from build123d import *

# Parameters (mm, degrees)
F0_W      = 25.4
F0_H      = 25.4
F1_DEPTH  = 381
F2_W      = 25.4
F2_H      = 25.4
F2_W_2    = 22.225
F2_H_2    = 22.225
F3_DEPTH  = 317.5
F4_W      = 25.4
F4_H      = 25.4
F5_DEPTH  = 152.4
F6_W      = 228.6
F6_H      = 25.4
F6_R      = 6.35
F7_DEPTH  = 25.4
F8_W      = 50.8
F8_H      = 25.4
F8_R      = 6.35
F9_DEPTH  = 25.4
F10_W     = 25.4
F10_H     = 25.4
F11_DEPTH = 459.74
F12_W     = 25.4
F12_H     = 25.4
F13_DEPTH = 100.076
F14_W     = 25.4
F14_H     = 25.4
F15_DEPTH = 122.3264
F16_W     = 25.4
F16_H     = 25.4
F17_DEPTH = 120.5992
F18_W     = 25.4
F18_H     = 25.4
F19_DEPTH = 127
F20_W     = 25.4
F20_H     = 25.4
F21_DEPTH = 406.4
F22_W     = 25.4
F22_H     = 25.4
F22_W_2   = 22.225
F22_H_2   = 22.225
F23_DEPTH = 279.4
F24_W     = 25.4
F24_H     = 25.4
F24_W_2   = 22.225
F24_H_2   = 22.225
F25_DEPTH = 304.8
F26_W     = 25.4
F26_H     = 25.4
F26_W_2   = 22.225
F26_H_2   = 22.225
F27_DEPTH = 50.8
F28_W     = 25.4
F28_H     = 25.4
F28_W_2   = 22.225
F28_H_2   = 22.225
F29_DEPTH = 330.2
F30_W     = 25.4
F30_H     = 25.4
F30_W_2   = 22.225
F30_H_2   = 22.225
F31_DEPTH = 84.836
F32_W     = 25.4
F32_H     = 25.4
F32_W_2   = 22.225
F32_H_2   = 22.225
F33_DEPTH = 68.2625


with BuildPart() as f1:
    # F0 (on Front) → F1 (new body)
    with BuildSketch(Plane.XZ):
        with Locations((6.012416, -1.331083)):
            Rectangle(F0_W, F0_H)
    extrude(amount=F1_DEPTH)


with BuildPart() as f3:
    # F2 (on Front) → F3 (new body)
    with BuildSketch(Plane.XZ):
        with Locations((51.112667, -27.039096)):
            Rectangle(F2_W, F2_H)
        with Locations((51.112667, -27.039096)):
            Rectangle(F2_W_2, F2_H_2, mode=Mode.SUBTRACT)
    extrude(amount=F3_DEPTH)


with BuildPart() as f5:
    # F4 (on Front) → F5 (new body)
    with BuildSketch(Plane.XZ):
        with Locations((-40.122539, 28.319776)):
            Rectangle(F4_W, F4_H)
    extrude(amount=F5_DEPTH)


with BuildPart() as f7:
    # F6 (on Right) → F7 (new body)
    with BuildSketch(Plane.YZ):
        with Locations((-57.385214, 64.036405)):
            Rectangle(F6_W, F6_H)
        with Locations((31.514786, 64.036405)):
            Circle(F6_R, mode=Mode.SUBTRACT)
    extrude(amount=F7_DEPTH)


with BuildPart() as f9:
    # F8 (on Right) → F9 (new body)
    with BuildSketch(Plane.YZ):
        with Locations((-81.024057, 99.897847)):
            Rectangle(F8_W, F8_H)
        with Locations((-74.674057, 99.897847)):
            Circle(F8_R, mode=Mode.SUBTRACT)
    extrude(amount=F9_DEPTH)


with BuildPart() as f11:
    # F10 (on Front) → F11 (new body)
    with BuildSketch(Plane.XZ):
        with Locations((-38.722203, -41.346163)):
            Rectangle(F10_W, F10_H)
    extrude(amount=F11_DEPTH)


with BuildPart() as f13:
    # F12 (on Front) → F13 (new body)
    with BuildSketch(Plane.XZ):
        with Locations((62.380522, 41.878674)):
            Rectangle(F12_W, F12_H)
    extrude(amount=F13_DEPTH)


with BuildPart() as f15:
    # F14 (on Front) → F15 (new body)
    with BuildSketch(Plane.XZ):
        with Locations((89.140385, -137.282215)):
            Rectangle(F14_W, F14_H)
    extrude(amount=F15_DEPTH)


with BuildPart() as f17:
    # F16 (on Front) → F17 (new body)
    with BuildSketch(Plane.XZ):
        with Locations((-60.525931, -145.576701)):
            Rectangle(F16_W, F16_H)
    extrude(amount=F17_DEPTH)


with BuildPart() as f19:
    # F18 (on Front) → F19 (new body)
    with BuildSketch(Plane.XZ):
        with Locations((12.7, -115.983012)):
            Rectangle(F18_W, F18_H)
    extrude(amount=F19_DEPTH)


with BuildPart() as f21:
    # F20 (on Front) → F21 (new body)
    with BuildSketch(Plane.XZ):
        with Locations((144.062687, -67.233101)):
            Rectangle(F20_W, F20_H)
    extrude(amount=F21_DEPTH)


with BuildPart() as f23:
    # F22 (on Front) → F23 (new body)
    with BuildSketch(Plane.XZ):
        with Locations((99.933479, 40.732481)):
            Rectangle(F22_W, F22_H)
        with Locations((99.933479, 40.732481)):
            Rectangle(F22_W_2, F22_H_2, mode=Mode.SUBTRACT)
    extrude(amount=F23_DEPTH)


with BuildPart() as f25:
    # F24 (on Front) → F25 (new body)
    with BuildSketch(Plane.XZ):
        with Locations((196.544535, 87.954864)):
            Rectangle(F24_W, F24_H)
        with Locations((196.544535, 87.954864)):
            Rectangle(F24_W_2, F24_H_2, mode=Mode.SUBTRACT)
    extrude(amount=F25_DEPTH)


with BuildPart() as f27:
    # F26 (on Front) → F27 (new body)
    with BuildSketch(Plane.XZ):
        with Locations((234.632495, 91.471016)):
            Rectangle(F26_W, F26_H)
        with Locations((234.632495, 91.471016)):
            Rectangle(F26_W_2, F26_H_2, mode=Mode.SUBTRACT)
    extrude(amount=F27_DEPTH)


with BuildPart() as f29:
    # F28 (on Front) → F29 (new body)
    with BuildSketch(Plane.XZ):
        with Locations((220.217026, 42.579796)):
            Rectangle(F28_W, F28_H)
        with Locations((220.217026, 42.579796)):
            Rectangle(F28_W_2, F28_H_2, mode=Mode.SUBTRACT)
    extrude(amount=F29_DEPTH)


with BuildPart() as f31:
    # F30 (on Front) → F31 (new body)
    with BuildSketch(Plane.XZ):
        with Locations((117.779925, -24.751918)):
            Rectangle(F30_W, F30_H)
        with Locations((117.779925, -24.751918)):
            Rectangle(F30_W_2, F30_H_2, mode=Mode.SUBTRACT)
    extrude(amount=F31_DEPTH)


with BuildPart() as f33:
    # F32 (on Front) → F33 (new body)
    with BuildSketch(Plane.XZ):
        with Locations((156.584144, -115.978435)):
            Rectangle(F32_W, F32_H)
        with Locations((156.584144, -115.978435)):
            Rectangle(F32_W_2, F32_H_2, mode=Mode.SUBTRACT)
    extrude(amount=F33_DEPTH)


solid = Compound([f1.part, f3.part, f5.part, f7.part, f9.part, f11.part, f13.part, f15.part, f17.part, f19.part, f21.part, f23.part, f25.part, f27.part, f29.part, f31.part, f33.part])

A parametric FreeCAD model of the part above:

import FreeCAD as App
import Part
import Sketcher
Q = App.Units.Quantity

doc = App.newDocument("Part")
body = doc.addObject("PartDesign::Body", "Body")

sketch1 = body.newObject("Sketcher::SketchObject", "Sketch")
sketch1.AttachmentSupport = (doc.getObject("XZ_Plane"), [""])
sketch1.MapMode = "FlatFace"
sketch1.addGeometry(Part.LineSegment(App.Vector(-7, 11, 0), App.Vector(-7, -14, 0)), False)
sketch1.addGeometry(Part.LineSegment(App.Vector(-7, -14, 0), App.Vector(19, -14, 0)), False)
sketch1.addGeometry(Part.LineSegment(App.Vector(19, -14, 0), App.Vector(19, 11, 0)), False)
sketch1.addGeometry(Part.LineSegment(App.Vector(19, 11, 0), App.Vector(-7, 11, 0)), False)
sketch1.addConstraint(Sketcher.Constraint("Coincident", 0, 2, 1, 1))
sketch1.addConstraint(Sketcher.Constraint("Coincident", 1, 2, 2, 1))
sketch1.addConstraint(Sketcher.Constraint("Coincident", 2, 2, 3, 1))
sketch1.addConstraint(Sketcher.Constraint("Coincident", 3, 2, 0, 1))
sketch1.addConstraint(Sketcher.Constraint("Vertical", 0))
sketch1.addConstraint(Sketcher.Constraint("Horizontal", 1))
sketch1.addConstraint(Sketcher.Constraint("Vertical", 2))
sketch1.addConstraint(Sketcher.Constraint("Horizontal", 3))
sketch1.addConstraint(Sketcher.Constraint("Equal", 3, 0))
sketch1.addConstraint(Sketcher.Constraint("DistanceX", 1, 1, 1, 2, Q("1 in")))
sketch1.addConstraint(Sketcher.Constraint("DistanceX", 0, 2, -1, 1, 6.687584))
sketch1.addConstraint(Sketcher.Constraint("DistanceY", 0, 2, -1, 1, 14.031083))
pad1 = body.newObject("PartDesign::Pad", "Pad")
pad1.Profile = sketch1
pad1.Length = Q("15 in")
body2 = doc.addObject("PartDesign::Body", "Body001")

sketch2 = body2.newObject("Sketcher::SketchObject", "Sketch001")
sketch2.AttachmentSupport = (doc.getObject("XZ_Plane001"), [""])
sketch2.MapMode = "FlatFace"
sketch2.addGeometry(Part.LineSegment(App.Vector(38, -14, 0), App.Vector(38, -40, 0)), False)
sketch2.addGeometry(Part.LineSegment(App.Vector(38, -40, 0), App.Vector(64, -40, 0)), False)
sketch2.addGeometry(Part.LineSegment(App.Vector(64, -40, 0), App.Vector(64, -14, 0)), False)
sketch2.addGeometry(Part.LineSegment(App.Vector(64, -14, 0), App.Vector(38, -14, 0)), False)
sketch2.addGeometry(Part.LineSegment(App.Vector(62, -38, 0), App.Vector(40, -38, 0)), False)
sketch2.addGeometry(Part.LineSegment(App.Vector(40, -38, 0), App.Vector(40, -16, 0)), False)
sketch2.addGeometry(Part.LineSegment(App.Vector(40, -16, 0), App.Vector(62, -16, 0)), False)
sketch2.addGeometry(Part.LineSegment(App.Vector(62, -16, 0), App.Vector(62, -38, 0)), False)
sketch2.addConstraint(Sketcher.Constraint("Coincident", 0, 2, 1, 1))
sketch2.addConstraint(Sketcher.Constraint("Coincident", 1, 2, 2, 1))
sketch2.addConstraint(Sketcher.Constraint("Coincident", 2, 2, 3, 1))
sketch2.addConstraint(Sketcher.Constraint("Coincident", 3, 2, 0, 1))
sketch2.addConstraint(Sketcher.Constraint("Coincident", 4, 2, 5, 1))
sketch2.addConstraint(Sketcher.Constraint("Coincident", 5, 2, 6, 1))
sketch2.addConstraint(Sketcher.Constraint("Coincident", 6, 2, 7, 1))
sketch2.addConstraint(Sketcher.Constraint("Coincident", 7, 2, 4, 1))
sketch2.addConstraint(Sketcher.Constraint("Vertical", 0))
sketch2.addConstraint(Sketcher.Constraint("Horizontal", 1))
sketch2.addConstraint(Sketcher.Constraint("Vertical", 2))
sketch2.addConstraint(Sketcher.Constraint("Horizontal", 3))
sketch2.addConstraint(Sketcher.Constraint("Horizontal", 4))
sketch2.addConstraint(Sketcher.Constraint("Vertical", 5))
sketch2.addConstraint(Sketcher.Constraint("Horizontal", 6))
sketch2.addConstraint(Sketcher.Constraint("Vertical", 7))
sketch2.addConstraint(Sketcher.Constraint("Equal", 3, 0))
sketch2.addConstraint(Sketcher.Constraint("Equal", 6, 5))
sketch2.addConstraint(Sketcher.Constraint("DistanceX", 1, 1, 1, 2, Q("1 in")))
sketch2.addConstraint(Sketcher.Constraint("DistanceX", 4, 2, 4, 1, Q("0.875 in")))
sketch2.addConstraint(Sketcher.Constraint("DistanceX", 0, 2, 4, 2, Q("0.0625 in")))
sketch2.addConstraint(Sketcher.Constraint("DistanceY", 0, 2, 4, 2, Q("0.0625 in")))
sketch2.addConstraint(Sketcher.Constraint("DistanceX", -1, 1, 0, 2, 38.412667))
sketch2.addConstraint(Sketcher.Constraint("DistanceY", 0, 2, -1, 1, 39.739096))
pad2 = body2.newObject("PartDesign::Pad", "Pad001")
pad2.Profile = sketch2
pad2.Length = Q("12.5 in")
body3 = doc.addObject("PartDesign::Body", "Body002")

sketch3 = body3.newObject("Sketcher::SketchObject", "Sketch002")
sketch3.AttachmentSupport = (doc.getObject("XZ_Plane002"), [""])
sketch3.MapMode = "FlatFace"
sketch3.addGeometry(Part.LineSegment(App.Vector(-53, 41, 0), App.Vector(-53, 16, 0)), False)
sketch3.addGeometry(Part.LineSegment(App.Vector(-53, 16, 0), App.Vector(-27, 16, 0)), False)
sketch3.addGeometry(Part.LineSegment(App.Vector(-27, 16, 0), App.Vector(-27, 41, 0)), False)
sketch3.addGeometry(Part.LineSegment(App.Vector(-27, 41, 0), App.Vector(-53, 41, 0)), False)
sketch3.addConstraint(Sketcher.Constraint("Coincident", 0, 2, 1, 1))
sketch3.addConstraint(Sketcher.Constraint("Coincident", 1, 2, 2, 1))
sketch3.addConstraint(Sketcher.Constraint("Coincident", 2, 2, 3, 1))
sketch3.addConstraint(Sketcher.Constraint("Coincident", 3, 2, 0, 1))
sketch3.addConstraint(Sketcher.Constraint("Vertical", 0))
sketch3.addConstraint(Sketcher.Constraint("Horizontal", 1))
sketch3.addConstraint(Sketcher.Constraint("Vertical", 2))
sketch3.addConstraint(Sketcher.Constraint("Horizontal", 3))
sketch3.addConstraint(Sketcher.Constraint("Equal", 3, 0))
sketch3.addConstraint(Sketcher.Constraint("DistanceX", 1, 1, 1, 2, Q("1 in")))
sketch3.addConstraint(Sketcher.Constraint("DistanceX", 0, 2, -1, 1, 52.822539))
sketch3.addConstraint(Sketcher.Constraint("DistanceY", -1, 1, 0, 2, 15.619776))
pad3 = body3.newObject("PartDesign::Pad", "Pad002")
pad3.Profile = sketch3
pad3.Length = Q("6 in")
body4 = doc.addObject("PartDesign::Body", "Body003")

sketch4 = body4.newObject("Sketcher::SketchObject", "Sketch003")
sketch4.AttachmentSupport = (doc.getObject("YZ_Plane003"), [""])
sketch4.MapMode = "FlatFace"
sketch4.addGeometry(Part.LineSegment(App.Vector(-172, 77, 0), App.Vector(-172, 51, 0)), False)
sketch4.addGeometry(Part.LineSegment(App.Vector(-172, 51, 0), App.Vector(57, 51, 0)), False)
sketch4.addGeometry(Part.LineSegment(App.Vector(57, 51, 0), App.Vector(57, 77, 0)), False)
sketch4.addGeometry(Part.LineSegment(App.Vector(57, 77, 0), App.Vector(-172, 77, 0)), False)
sketch4.addGeometry(Part.Circle(App.Vector(32, 64, 0), App.Vector(0, 0, 1), 6), False)
sketch4.addConstraint(Sketcher.Constraint("Coincident", 0, 2, 1, 1))
sketch4.addConstraint(Sketcher.Constraint("Coincident", 1, 2, 2, 1))
sketch4.addConstraint(Sketcher.Constraint("Coincident", 2, 2, 3, 1))
sketch4.addConstraint(Sketcher.Constraint("Coincident", 3, 2, 0, 1))
sketch4.addConstraint(Sketcher.Constraint("Vertical", 0))
sketch4.addConstraint(Sketcher.Constraint("Horizontal", 1))
sketch4.addConstraint(Sketcher.Constraint("Vertical", 2))
sketch4.addConstraint(Sketcher.Constraint("Horizontal", 3))
sketch4.addConstraint(Sketcher.Constraint("Diameter", 4, Q("0.5 in")))
sketch4.addConstraint(Sketcher.Constraint("DistanceX", 1, 1, 1, 2, Q("9 in")))
sketch4.addConstraint(Sketcher.Constraint("DistanceY", 0, 2, 0, 1, Q("1 in")))
sketch4.addConstraint(Sketcher.Constraint("DistanceX", 0, 2, 4, 3, Q("8 in")))
sketch4.addConstraint(Sketcher.Constraint("DistanceY", 0, 2, 4, 3, Q("0.5 in")))
sketch4.addConstraint(Sketcher.Constraint("DistanceX", -1, 1, 4, 3, 31.514786))
sketch4.addConstraint(Sketcher.Constraint("DistanceY", -1, 1, 4, 3, 64.036405))
pad4 = body4.newObject("PartDesign::Pad", "Pad003")
pad4.Profile = sketch4
pad4.Length = Q("1 in")
body5 = doc.addObject("PartDesign::Body", "Body004")

sketch5 = body5.newObject("Sketcher::SketchObject", "Sketch004")
sketch5.AttachmentSupport = (doc.getObject("YZ_Plane004"), [""])
sketch5.MapMode = "FlatFace"
sketch5.addGeometry(Part.LineSegment(App.Vector(-106, 113, 0), App.Vector(-106, 87, 0)), False)
sketch5.addGeometry(Part.LineSegment(App.Vector(-106, 87, 0), App.Vector(-56, 87, 0)), False)
sketch5.addGeometry(Part.LineSegment(App.Vector(-56, 87, 0), App.Vector(-56, 113, 0)), False)
sketch5.addGeometry(Part.LineSegment(App.Vector(-56, 113, 0), App.Vector(-106, 113, 0)), False)
sketch5.addGeometry(Part.Circle(App.Vector(-75, 100, 0), App.Vector(0, 0, 1), 6), False)
sketch5.addConstraint(Sketcher.Constraint("Coincident", 0, 2, 1, 1))
sketch5.addConstraint(Sketcher.Constraint("Coincident", 1, 2, 2, 1))
sketch5.addConstraint(Sketcher.Constraint("Coincident", 2, 2, 3, 1))
sketch5.addConstraint(Sketcher.Constraint("Coincident", 3, 2, 0, 1))
sketch5.addConstraint(Sketcher.Constraint("Vertical", 0))
sketch5.addConstraint(Sketcher.Constraint("Horizontal", 1))
sketch5.addConstraint(Sketcher.Constraint("Vertical", 2))
sketch5.addConstraint(Sketcher.Constraint("Horizontal", 3))
sketch5.addConstraint(Sketcher.Constraint("Diameter", 4, Q("0.5 in")))
sketch5.addConstraint(Sketcher.Constraint("DistanceX", 1, 1, 1, 2, Q("2 in")))
sketch5.addConstraint(Sketcher.Constraint("DistanceY", 0, 2, 0, 1, Q("1 in")))
sketch5.addConstraint(Sketcher.Constraint("DistanceY", 0, 2, 4, 3, Q("0.5 in")))
sketch5.addConstraint(Sketcher.Constraint("DistanceX", 0, 2, 4, 3, Q("1.25 in")))
sketch5.addConstraint(Sketcher.Constraint("DistanceX", 4, 3, -1, 1, 74.674057))
sketch5.addConstraint(Sketcher.Constraint("DistanceY", -1, 1, 4, 3, 99.897847))
pad5 = body5.newObject("PartDesign::Pad", "Pad004")
pad5.Profile = sketch5
pad5.Length = Q("1 in")
body6 = doc.addObject("PartDesign::Body", "Body005")

sketch6 = body6.newObject("Sketcher::SketchObject", "Sketch005")
sketch6.AttachmentSupport = (doc.getObject("XZ_Plane005"), [""])
sketch6.MapMode = "FlatFace"
sketch6.addGeometry(Part.LineSegment(App.Vector(-51, -29, 0), App.Vector(-51, -54, 0)), False)
sketch6.addGeometry(Part.LineSegment(App.Vector(-51, -54, 0), App.Vector(-26, -54, 0)), False)
sketch6.addGeometry(Part.LineSegment(App.Vector(-26, -54, 0), App.Vector(-26, -29, 0)), False)
sketch6.addGeometry(Part.LineSegment(App.Vector(-26, -29, 0), App.Vector(-51, -29, 0)), False)
sketch6.addConstraint(Sketcher.Constraint("Coincident", 0, 2, 1, 1))
sketch6.addConstraint(Sketcher.Constraint("Coincident", 1, 2, 2, 1))
sketch6.addConstraint(Sketcher.Constraint("Coincident", 2, 2, 3, 1))
sketch6.addConstraint(Sketcher.Constraint("Coincident", 3, 2, 0, 1))
sketch6.addConstraint(Sketcher.Constraint("Vertical", 0))
sketch6.addConstraint(Sketcher.Constraint("Horizontal", 1))
sketch6.addConstraint(Sketcher.Constraint("Vertical", 2))
sketch6.addConstraint(Sketcher.Constraint("Horizontal", 3))
sketch6.addConstraint(Sketcher.Constraint("Equal", 3, 0))
sketch6.addConstraint(Sketcher.Constraint("DistanceX", 1, 1, 1, 2, Q("1 in")))
sketch6.addConstraint(Sketcher.Constraint("DistanceX", 0, 2, -1, 1, 51.422203))
sketch6.addConstraint(Sketcher.Constraint("DistanceY", 0, 2, -1, 1, 54.046163))
pad6 = body6.newObject("PartDesign::Pad", "Pad005")
pad6.Profile = sketch6
pad6.Length = Q("18.1 in")
body7 = doc.addObject("PartDesign::Body", "Body006")

sketch7 = body7.newObject("Sketcher::SketchObject", "Sketch006")
sketch7.AttachmentSupport = (doc.getObject("XZ_Plane006"), [""])
sketch7.MapMode = "FlatFace"
sketch7.addGeometry(Part.LineSegment(App.Vector(50, 55, 0), App.Vector(50, 29, 0)), False)
sketch7.addGeometry(Part.LineSegment(App.Vector(50, 29, 0), App.Vector(75, 29, 0)), False)
sketch7.addGeometry(Part.LineSegment(App.Vector(75, 29, 0), App.Vector(75, 55, 0)), False)
sketch7.addGeometry(Part.LineSegment(App.Vector(75, 55, 0), App.Vector(50, 55, 0)), False)
sketch7.addConstraint(Sketcher.Constraint("Coincident", 0, 2, 1, 1))
sketch7.addConstraint(Sketcher.Constraint("Coincident", 1, 2, 2, 1))
sketch7.addConstraint(Sketcher.Constraint("Coincident", 2, 2, 3, 1))
sketch7.addConstraint(Sketcher.Constraint("Coincident", 3, 2, 0, 1))
sketch7.addConstraint(Sketcher.Constraint("Vertical", 0))
sketch7.addConstraint(Sketcher.Constraint("Horizontal", 1))
sketch7.addConstraint(Sketcher.Constraint("Vertical", 2))
sketch7.addConstraint(Sketcher.Constraint("Horizontal", 3))
sketch7.addConstraint(Sketcher.Constraint("Equal", 3, 0))
sketch7.addConstraint(Sketcher.Constraint("DistanceX", 1, 1, 1, 2, Q("1 in")))
sketch7.addConstraint(Sketcher.Constraint("DistanceX", -1, 1, 1, 2, 75.080522))
sketch7.addConstraint(Sketcher.Constraint("DistanceY", -1, 1, 0, 2, 29.178674))
pad7 = body7.newObject("PartDesign::Pad", "Pad006")
pad7.Profile = sketch7
pad7.Length = Q("3.94 in")
body8 = doc.addObject("PartDesign::Body", "Body007")

sketch8 = body8.newObject("Sketcher::SketchObject", "Sketch007")
sketch8.AttachmentSupport = (doc.getObject("XZ_Plane007"), [""])
sketch8.MapMode = "FlatFace"
sketch8.addGeometry(Part.LineSegment(App.Vector(76, -125, 0), App.Vector(76, -150, 0)), False)
sketch8.addGeometry(Part.LineSegment(App.Vector(76, -150, 0), App.Vector(102, -150, 0)), False)
sketch8.addGeometry(Part.LineSegment(App.Vector(102, -150, 0), App.Vector(102, -125, 0)), False)
sketch8.addGeometry(Part.LineSegment(App.Vector(102, -125, 0), App.Vector(76, -125, 0)), False)
sketch8.addConstraint(Sketcher.Constraint("Coincident", 0, 2, 1, 1))
sketch8.addConstraint(Sketcher.Constraint("Coincident", 1, 2, 2, 1))
sketch8.addConstraint(Sketcher.Constraint("Coincident", 2, 2, 3, 1))
sketch8.addConstraint(Sketcher.Constraint("Coincident", 3, 2, 0, 1))
sketch8.addConstraint(Sketcher.Constraint("Vertical", 0))
sketch8.addConstraint(Sketcher.Constraint("Horizontal", 1))
sketch8.addConstraint(Sketcher.Constraint("Vertical", 2))
sketch8.addConstraint(Sketcher.Constraint("Horizontal", 3))
sketch8.addConstraint(Sketcher.Constraint("Equal", 3, 0))
sketch8.addConstraint(Sketcher.Constraint("DistanceX", 1, 1, 1, 2, Q("1 in")))
sketch8.addConstraint(Sketcher.Constraint("DistanceX", -1, 1, 0, 2, 76.440385))
sketch8.addConstraint(Sketcher.Constraint("DistanceY", 0, 2, -1, 1, 149.982215))
pad8 = body8.newObject("PartDesign::Pad", "Pad007")
pad8.Profile = sketch8
pad8.Length = Q("4.816 in")
body9 = doc.addObject("PartDesign::Body", "Body008")

sketch9 = body9.newObject("Sketcher::SketchObject", "Sketch008")
sketch9.AttachmentSupport = (doc.getObject("XZ_Plane008"), [""])
sketch9.MapMode = "FlatFace"
sketch9.addGeometry(Part.LineSegment(App.Vector(-73, -133, 0), App.Vector(-73, -158, 0)), False)
sketch9.addGeometry(Part.LineSegment(App.Vector(-73, -158, 0), App.Vector(-48, -158, 0)), False)
sketch9.addGeometry(Part.LineSegment(App.Vector(-48, -158, 0), App.Vector(-48, -133, 0)), False)
sketch9.addGeometry(Part.LineSegment(App.Vector(-48, -133, 0), App.Vector(-73, -133, 0)), False)
sketch9.addConstraint(Sketcher.Constraint("Coincident", 0, 2, 1, 1))
sketch9.addConstraint(Sketcher.Constraint("Coincident", 1, 2, 2, 1))
sketch9.addConstraint(Sketcher.Constraint("Coincident", 2, 2, 3, 1))
sketch9.addConstraint(Sketcher.Constraint("Coincident", 3, 2, 0, 1))
sketch9.addConstraint(Sketcher.Constraint("Vertical", 0))
sketch9.addConstraint(Sketcher.Constraint("Horizontal", 1))
sketch9.addConstraint(Sketcher.Constraint("Vertical", 2))
sketch9.addConstraint(Sketcher.Constraint("Horizontal", 3))
sketch9.addConstraint(Sketcher.Constraint("Equal", 3, 0))
sketch9.addConstraint(Sketcher.Constraint("DistanceX", 1, 1, 1, 2, Q("1 in")))
sketch9.addConstraint(Sketcher.Constraint("DistanceY", 0, 2, -1, 1, 158.276701))
sketch9.addConstraint(Sketcher.Constraint("DistanceX", 0, 2, -1, 1, 73.225931))
pad9 = body9.newObject("PartDesign::Pad", "Pad008")
pad9.Profile = sketch9
pad9.Length = Q("4.748 in")
body10 = doc.addObject("PartDesign::Body", "Body009")

sketch10 = body10.newObject("Sketcher::SketchObject", "Sketch009")
sketch10.AttachmentSupport = (doc.getObject("XZ_Plane009"), [""])
sketch10.MapMode = "FlatFace"
sketch10.addGeometry(Part.LineSegment(App.Vector(0, -103, 0), App.Vector(0, -129, 0)), False)
sketch10.addGeometry(Part.LineSegment(App.Vector(0, -129, 0), App.Vector(25, -129, 0)), False)
sketch10.addGeometry(Part.LineSegment(App.Vector(25, -129, 0), App.Vector(25, -103, 0)), False)
sketch10.addGeometry(Part.LineSegment(App.Vector(25, -103, 0), App.Vector(0, -103, 0)), False)
sketch10.addConstraint(Sketcher.Constraint("Coincident", 0, 2, 1, 1))
sketch10.addConstraint(Sketcher.Constraint("Coincident", 1, 2, 2, 1))
sketch10.addConstraint(Sketcher.Constraint("Coincident", 2, 2, 3, 1))
sketch10.addConstraint(Sketcher.Constraint("Coincident", 3, 2, 0, 1))
sketch10.addConstraint(Sketcher.Constraint("Vertical", 0))
sketch10.addConstraint(Sketcher.Constraint("Horizontal", 1))
sketch10.addConstraint(Sketcher.Constraint("Vertical", 2))
sketch10.addConstraint(Sketcher.Constraint("Horizontal", 3))
sketch10.addConstraint(Sketcher.Constraint("PointOnObject", 0, 2, -2))
sketch10.addConstraint(Sketcher.Constraint("Equal", 3, 0))
sketch10.addConstraint(Sketcher.Constraint("DistanceX", 1, 1, 1, 2, Q("1 in")))
sketch10.addConstraint(Sketcher.Constraint("DistanceY", 0, 2, -1, 1, 128.683012))
pad10 = body10.newObject("PartDesign::Pad", "Pad009")
pad10.Profile = sketch10
pad10.Length = Q("5 in")
body11 = doc.addObject("PartDesign::Body", "Body010")

sketch11 = body11.newObject("Sketcher::SketchObject", "Sketch010")
sketch11.AttachmentSupport = (doc.getObject("XZ_Plane010"), [""])
sketch11.MapMode = "FlatFace"
sketch11.addGeometry(Part.LineSegment(App.Vector(131, -55, 0), App.Vector(131, -80, 0)), False)
sketch11.addGeometry(Part.LineSegment(App.Vector(131, -80, 0), App.Vector(157, -80, 0)), False)
sketch11.addGeometry(Part.LineSegment(App.Vector(157, -80, 0), App.Vector(157, -55, 0)), False)
sketch11.addGeometry(Part.LineSegment(App.Vector(157, -55, 0), App.Vector(131, -55, 0)), False)
sketch11.addConstraint(Sketcher.Constraint("Coincident", 0, 2, 1, 1))
sketch11.addConstraint(Sketcher.Constraint("Coincident", 1, 2, 2, 1))
sketch11.addConstraint(Sketcher.Constraint("Coincident", 2, 2, 3, 1))
sketch11.addConstraint(Sketcher.Constraint("Coincident", 3, 2, 0, 1))
sketch11.addConstraint(Sketcher.Constraint("Vertical", 0))
sketch11.addConstraint(Sketcher.Constraint("Horizontal", 1))
sketch11.addConstraint(Sketcher.Constraint("Vertical", 2))
sketch11.addConstraint(Sketcher.Constraint("Horizontal", 3))
sketch11.addConstraint(Sketcher.Constraint("Equal", 3, 0))
sketch11.addConstraint(Sketcher.Constraint("DistanceX", 1, 1, 1, 2, Q("1 in")))
sketch11.addConstraint(Sketcher.Constraint("DistanceY", 0, 2, -1, 1, 79.933101))
sketch11.addConstraint(Sketcher.Constraint("DistanceX", -1, 1, 0, 2, 131.362687))
pad11 = body11.newObject("PartDesign::Pad", "Pad010")
pad11.Profile = sketch11
pad11.Length = Q("16 in")
body12 = doc.addObject("PartDesign::Body", "Body011")

sketch12 = body12.newObject("Sketcher::SketchObject", "Sketch011")
sketch12.AttachmentSupport = (doc.getObject("XZ_Plane011"), [""])
sketch12.MapMode = "FlatFace"
sketch12.addGeometry(Part.LineSegment(App.Vector(87, 53, 0), App.Vector(87, 28, 0)), False)
sketch12.addGeometry(Part.LineSegment(App.Vector(87, 28, 0), App.Vector(113, 28, 0)), False)
sketch12.addGeometry(Part.LineSegment(App.Vector(113, 28, 0), App.Vector(113, 53, 0)), False)
sketch12.addGeometry(Part.LineSegment(App.Vector(113, 53, 0), App.Vector(87, 53, 0)), False)
sketch12.addGeometry(Part.LineSegment(App.Vector(111, 30, 0), App.Vector(89, 30, 0)), False)
sketch12.addGeometry(Part.LineSegment(App.Vector(89, 30, 0), App.Vector(89, 52, 0)), False)
sketch12.addGeometry(Part.LineSegment(App.Vector(89, 52, 0), App.Vector(111, 52, 0)), False)
sketch12.addGeometry(Part.LineSegment(App.Vector(111, 52, 0), App.Vector(111, 30, 0)), False)
sketch12.addConstraint(Sketcher.Constraint("Coincident", 0, 2, 1, 1))
sketch12.addConstraint(Sketcher.Constraint("Coincident", 1, 2, 2, 1))
sketch12.addConstraint(Sketcher.Constraint("Coincident", 2, 2, 3, 1))
sketch12.addConstraint(Sketcher.Constraint("Coincident", 3, 2, 0, 1))
sketch12.addConstraint(Sketcher.Constraint("Coincident", 4, 2, 5, 1))
sketch12.addConstraint(Sketcher.Constraint("Coincident", 5, 2, 6, 1))
sketch12.addConstraint(Sketcher.Constraint("Coincident", 6, 2, 7, 1))
sketch12.addConstraint(Sketcher.Constraint("Coincident", 7, 2, 4, 1))
sketch12.addConstraint(Sketcher.Constraint("Vertical", 0))
sketch12.addConstraint(Sketcher.Constraint("Horizontal", 1))
sketch12.addConstraint(Sketcher.Constraint("Vertical", 2))
sketch12.addConstraint(Sketcher.Constraint("Horizontal", 3))
sketch12.addConstraint(Sketcher.Constraint("Horizontal", 4))
sketch12.addConstraint(Sketcher.Constraint("Vertical", 5))
sketch12.addConstraint(Sketcher.Constraint("Horizontal", 6))
sketch12.addConstraint(Sketcher.Constraint("Vertical", 7))
sketch12.addConstraint(Sketcher.Constraint("Equal", 3, 0))
sketch12.addConstraint(Sketcher.Constraint("Equal", 6, 5))
sketch12.addConstraint(Sketcher.Constraint("DistanceX", 1, 1, 1, 2, Q("1 in")))
sketch12.addConstraint(Sketcher.Constraint("DistanceX", 4, 2, 4, 1, Q("0.875 in")))
sketch12.addConstraint(Sketcher.Constraint("DistanceX", 0, 2, 4, 2, Q("0.0625 in")))
sketch12.addConstraint(Sketcher.Constraint("DistanceY", 0, 2, 4, 2, Q("0.0625 in")))
sketch12.addConstraint(Sketcher.Constraint("DistanceX", -1, 1, 0, 2, 87.233479))
sketch12.addConstraint(Sketcher.Constraint("DistanceY", -1, 1, 0, 2, 28.032481))
pad12 = body12.newObject("PartDesign::Pad", "Pad011")
pad12.Profile = sketch12
pad12.Length = Q("11 in")
body13 = doc.addObject("PartDesign::Body", "Body012")

sketch13 = body13.newObject("Sketcher::SketchObject", "Sketch012")
sketch13.AttachmentSupport = (doc.getObject("XZ_Plane012"), [""])
sketch13.MapMode = "FlatFace"
sketch13.addGeometry(Part.LineSegment(App.Vector(184, 101, 0), App.Vector(184, 75, 0)), False)
sketch13.addGeometry(Part.LineSegment(App.Vector(184, 75, 0), App.Vector(209, 75, 0)), False)
sketch13.addGeometry(Part.LineSegment(App.Vector(209, 75, 0), App.Vector(209, 101, 0)), False)
sketch13.addGeometry(Part.LineSegment(App.Vector(209, 101, 0), App.Vector(184, 101, 0)), False)
sketch13.addGeometry(Part.LineSegment(App.Vector(208, 77, 0), App.Vector(185, 77, 0)), False)
sketch13.addGeometry(Part.LineSegment(App.Vector(185, 77, 0), App.Vector(185, 99, 0)), False)
sketch13.addGeometry(Part.LineSegment(App.Vector(185, 99, 0), App.Vector(208, 99, 0)), False)
sketch13.addGeometry(Part.LineSegment(App.Vector(208, 99, 0), App.Vector(208, 77, 0)), False)
sketch13.addConstraint(Sketcher.Constraint("Coincident", 0, 2, 1, 1))
sketch13.addConstraint(Sketcher.Constraint("Coincident", 1, 2, 2, 1))
sketch13.addConstraint(Sketcher.Constraint("Coincident", 2, 2, 3, 1))
sketch13.addConstraint(Sketcher.Constraint("Coincident", 3, 2, 0, 1))
sketch13.addConstraint(Sketcher.Constraint("Coincident", 4, 2, 5, 1))
sketch13.addConstraint(Sketcher.Constraint("Coincident", 5, 2, 6, 1))
sketch13.addConstraint(Sketcher.Constraint("Coincident", 6, 2, 7, 1))
sketch13.addConstraint(Sketcher.Constraint("Coincident", 7, 2, 4, 1))
sketch13.addConstraint(Sketcher.Constraint("Vertical", 0))
sketch13.addConstraint(Sketcher.Constraint("Horizontal", 1))
sketch13.addConstraint(Sketcher.Constraint("Vertical", 2))
sketch13.addConstraint(Sketcher.Constraint("Horizontal", 3))
sketch13.addConstraint(Sketcher.Constraint("Horizontal", 4))
sketch13.addConstraint(Sketcher.Constraint("Vertical", 5))
sketch13.addConstraint(Sketcher.Constraint("Horizontal", 6))
sketch13.addConstraint(Sketcher.Constraint("Vertical", 7))
sketch13.addConstraint(Sketcher.Constraint("Equal", 3, 0))
sketch13.addConstraint(Sketcher.Constraint("Equal", 6, 5))
sketch13.addConstraint(Sketcher.Constraint("DistanceX", 1, 1, 1, 2, Q("1 in")))
sketch13.addConstraint(Sketcher.Constraint("DistanceX", 4, 2, 4, 1, Q("0.875 in")))
sketch13.addConstraint(Sketcher.Constraint("DistanceX", 0, 2, 4, 2, Q("0.0625 in")))
sketch13.addConstraint(Sketcher.Constraint("DistanceY", 0, 2, 4, 2, Q("0.0625 in")))
sketch13.addConstraint(Sketcher.Constraint("DistanceX", -1, 1, 0, 2, 183.844535))
sketch13.addConstraint(Sketcher.Constraint("DistanceY", -1, 1, 0, 2, 75.254864))
pad13 = body13.newObject("PartDesign::Pad", "Pad012")
pad13.Profile = sketch13
pad13.Length = Q("12 in")
body14 = doc.addObject("PartDesign::Body", "Body013")

sketch14 = body14.newObject("Sketcher::SketchObject", "Sketch013")
sketch14.AttachmentSupport = (doc.getObject("XZ_Plane013"), [""])
sketch14.MapMode = "FlatFace"
sketch14.addGeometry(Part.LineSegment(App.Vector(222, 104, 0), App.Vector(222, 79, 0)), False)
sketch14.addGeometry(Part.LineSegment(App.Vector(222, 79, 0), App.Vector(247, 79, 0)), False)
sketch14.addGeometry(Part.LineSegment(App.Vector(247, 79, 0), App.Vector(247, 104, 0)), False)
sketch14.addGeometry(Part.LineSegment(App.Vector(247, 104, 0), App.Vector(222, 104, 0)), False)
sketch14.addGeometry(Part.LineSegment(App.Vector(246, 80, 0), App.Vector(224, 80, 0)), False)
sketch14.addGeometry(Part.LineSegment(App.Vector(224, 80, 0), App.Vector(224, 103, 0)), False)
sketch14.addGeometry(Part.LineSegment(App.Vector(224, 103, 0), App.Vector(246, 103, 0)), False)
sketch14.addGeometry(Part.LineSegment(App.Vector(246, 103, 0), App.Vector(246, 80, 0)), False)
sketch14.addConstraint(Sketcher.Constraint("Coincident", 0, 2, 1, 1))
sketch14.addConstraint(Sketcher.Constraint("Coincident", 1, 2, 2, 1))
sketch14.addConstraint(Sketcher.Constraint("Coincident", 2, 2, 3, 1))
sketch14.addConstraint(Sketcher.Constraint("Coincident", 3, 2, 0, 1))
sketch14.addConstraint(Sketcher.Constraint("Coincident", 4, 2, 5, 1))
sketch14.addConstraint(Sketcher.Constraint("Coincident", 5, 2, 6, 1))
sketch14.addConstraint(Sketcher.Constraint("Coincident", 6, 2, 7, 1))
sketch14.addConstraint(Sketcher.Constraint("Coincident", 7, 2, 4, 1))
sketch14.addConstraint(Sketcher.Constraint("Vertical", 0))
sketch14.addConstraint(Sketcher.Constraint("Horizontal", 1))
sketch14.addConstraint(Sketcher.Constraint("Vertical", 2))
sketch14.addConstraint(Sketcher.Constraint("Horizontal", 3))
sketch14.addConstraint(Sketcher.Constraint("Horizontal", 4))
sketch14.addConstraint(Sketcher.Constraint("Vertical", 5))
sketch14.addConstraint(Sketcher.Constraint("Horizontal", 6))
sketch14.addConstraint(Sketcher.Constraint("Vertical", 7))
sketch14.addConstraint(Sketcher.Constraint("Equal", 3, 0))
sketch14.addConstraint(Sketcher.Constraint("Equal", 6, 5))
sketch14.addConstraint(Sketcher.Constraint("DistanceX", 1, 1, 1, 2, Q("1 in")))
sketch14.addConstraint(Sketcher.Constraint("DistanceX", -1, 1, 4, 2, Q("8.7999998 in")))
sketch14.addConstraint(Sketcher.Constraint("DistanceX", 4, 2, 4, 1, Q("0.875 in")))
sketch14.addConstraint(Sketcher.Constraint("DistanceX", 0, 2, 4, 2, Q("0.0625 in")))
sketch14.addConstraint(Sketcher.Constraint("DistanceY", 0, 2, 4, 2, Q("0.0625 in")))
sketch14.addConstraint(Sketcher.Constraint("DistanceY", -1, 1, 0, 2, 78.771016))
pad14 = body14.newObject("PartDesign::Pad", "Pad013")
pad14.Profile = sketch14
pad14.Length = Q("2 in")
body15 = doc.addObject("PartDesign::Body", "Body014")

sketch15 = body15.newObject("Sketcher::SketchObject", "Sketch014")
sketch15.AttachmentSupport = (doc.getObject("XZ_Plane014"), [""])
sketch15.MapMode = "FlatFace"
sketch15.addGeometry(Part.LineSegment(App.Vector(208, 55, 0), App.Vector(208, 30, 0)), False)
sketch15.addGeometry(Part.LineSegment(App.Vector(208, 30, 0), App.Vector(233, 30, 0)), False)
sketch15.addGeometry(Part.LineSegment(App.Vector(233, 30, 0), App.Vector(233, 55, 0)), False)
sketch15.addGeometry(Part.LineSegment(App.Vector(233, 55, 0), App.Vector(208, 55, 0)), False)
sketch15.addGeometry(Part.LineSegment(App.Vector(231, 31, 0), App.Vector(209, 31, 0)), False)
sketch15.addGeometry(Part.LineSegment(App.Vector(209, 31, 0), App.Vector(209, 54, 0)), False)
sketch15.addGeometry(Part.LineSegment(App.Vector(209, 54, 0), App.Vector(231, 54, 0)), False)
sketch15.addGeometry(Part.LineSegment(App.Vector(231, 54, 0), App.Vector(231, 31, 0)), False)
sketch15.addConstraint(Sketcher.Constraint("Coincident", 0, 2, 1, 1))
sketch15.addConstraint(Sketcher.Constraint("Coincident", 1, 2, 2, 1))
sketch15.addConstraint(Sketcher.Constraint("Coincident", 2, 2, 3, 1))
sketch15.addConstraint(Sketcher.Constraint("Coincident", 3, 2, 0, 1))
sketch15.addConstraint(Sketcher.Constraint("Coincident", 4, 2, 5, 1))
sketch15.addConstraint(Sketcher.Constraint("Coincident", 5, 2, 6, 1))
sketch15.addConstraint(Sketcher.Constraint("Coincident", 6, 2, 7, 1))
sketch15.addConstraint(Sketcher.Constraint("Coincident", 7, 2, 4, 1))
sketch15.addConstraint(Sketcher.Constraint("Vertical", 0))
sketch15.addConstraint(Sketcher.Constraint("Horizontal", 1))
sketch15.addConstraint(Sketcher.Constraint("Vertical", 2))
sketch15.addConstraint(Sketcher.Constraint("Horizontal", 3))
sketch15.addConstraint(Sketcher.Constraint("Horizontal", 4))
sketch15.addConstraint(Sketcher.Constraint("Vertical", 5))
sketch15.addConstraint(Sketcher.Constraint("Horizontal", 6))
sketch15.addConstraint(Sketcher.Constraint("Vertical", 7))
sketch15.addConstraint(Sketcher.Constraint("Equal", 3, 0))
sketch15.addConstraint(Sketcher.Constraint("Equal", 6, 5))
sketch15.addConstraint(Sketcher.Constraint("DistanceX", 1, 1, 1, 2, Q("1 in")))
sketch15.addConstraint(Sketcher.Constraint("DistanceX", 4, 2, 4, 1, Q("0.875 in")))
sketch15.addConstraint(Sketcher.Constraint("DistanceX", 0, 2, 4, 2, Q("0.0625 in")))
sketch15.addConstraint(Sketcher.Constraint("DistanceY", 0, 2, 4, 2, Q("0.0625 in")))
sketch15.addConstraint(Sketcher.Constraint("DistanceX", -1, 1, 0, 2, 207.517026))
sketch15.addConstraint(Sketcher.Constraint("DistanceY", -1, 1, 0, 2, 29.879796))
pad15 = body15.newObject("PartDesign::Pad", "Pad014")
pad15.Profile = sketch15
pad15.Length = Q("13 in")
body16 = doc.addObject("PartDesign::Body", "Body015")

sketch16 = body16.newObject("Sketcher::SketchObject", "Sketch015")
sketch16.AttachmentSupport = (doc.getObject("XZ_Plane015"), [""])
sketch16.MapMode = "FlatFace"
sketch16.addGeometry(Part.LineSegment(App.Vector(105, -12, 0), App.Vector(105, -37, 0)), False)
sketch16.addGeometry(Part.LineSegment(App.Vector(105, -37, 0), App.Vector(130, -37, 0)), False)
sketch16.addGeometry(Part.LineSegment(App.Vector(130, -37, 0), App.Vector(130, -12, 0)), False)
sketch16.addGeometry(Part.LineSegment(App.Vector(130, -12, 0), App.Vector(105, -12, 0)), False)
sketch16.addGeometry(Part.LineSegment(App.Vector(129, -36, 0), App.Vector(107, -36, 0)), False)
sketch16.addGeometry(Part.LineSegment(App.Vector(107, -36, 0), App.Vector(107, -14, 0)), False)
sketch16.addGeometry(Part.LineSegment(App.Vector(107, -14, 0), App.Vector(129, -14, 0)), False)
sketch16.addGeometry(Part.LineSegment(App.Vector(129, -14, 0), App.Vector(129, -36, 0)), False)
sketch16.addConstraint(Sketcher.Constraint("Coincident", 0, 2, 1, 1))
sketch16.addConstraint(Sketcher.Constraint("Coincident", 1, 2, 2, 1))
sketch16.addConstraint(Sketcher.Constraint("Coincident", 2, 2, 3, 1))
sketch16.addConstraint(Sketcher.Constraint("Coincident", 3, 2, 0, 1))
sketch16.addConstraint(Sketcher.Constraint("Coincident", 4, 2, 5, 1))
sketch16.addConstraint(Sketcher.Constraint("Coincident", 5, 2, 6, 1))
sketch16.addConstraint(Sketcher.Constraint("Coincident", 6, 2, 7, 1))
sketch16.addConstraint(Sketcher.Constraint("Coincident", 7, 2, 4, 1))
sketch16.addConstraint(Sketcher.Constraint("Vertical", 0))
sketch16.addConstraint(Sketcher.Constraint("Horizontal", 1))
sketch16.addConstraint(Sketcher.Constraint("Vertical", 2))
sketch16.addConstraint(Sketcher.Constraint("Horizontal", 3))
sketch16.addConstraint(Sketcher.Constraint("Horizontal", 4))
sketch16.addConstraint(Sketcher.Constraint("Vertical", 5))
sketch16.addConstraint(Sketcher.Constraint("Horizontal", 6))
sketch16.addConstraint(Sketcher.Constraint("Vertical", 7))
sketch16.addConstraint(Sketcher.Constraint("Equal", 3, 0))
sketch16.addConstraint(Sketcher.Constraint("Equal", 6, 5))
sketch16.addConstraint(Sketcher.Constraint("DistanceX", 1, 1, 1, 2, Q("1 in")))
sketch16.addConstraint(Sketcher.Constraint("DistanceX", 4, 2, 4, 1, Q("0.875 in")))
sketch16.addConstraint(Sketcher.Constraint("DistanceX", 0, 2, 4, 2, Q("0.0625 in")))
sketch16.addConstraint(Sketcher.Constraint("DistanceY", 0, 2, 4, 2, Q("0.0625 in")))
sketch16.addConstraint(Sketcher.Constraint("DistanceX", -1, 1, 0, 2, 105.079925))
sketch16.addConstraint(Sketcher.Constraint("DistanceY", 0, 2, -1, 1, 37.451918))
pad16 = body16.newObject("PartDesign::Pad", "Pad015")
pad16.Profile = sketch16
pad16.Length = Q("3.34 in")
body17 = doc.addObject("PartDesign::Body", "Body016")

sketch17 = body17.newObject("Sketcher::SketchObject", "Sketch016")
sketch17.AttachmentSupport = (doc.getObject("XZ_Plane016"), [""])
sketch17.MapMode = "FlatFace"
sketch17.addGeometry(Part.LineSegment(App.Vector(144, -103, 0), App.Vector(144, -129, 0)), False)
sketch17.addGeometry(Part.LineSegment(App.Vector(144, -129, 0), App.Vector(169, -129, 0)), False)
sketch17.addGeometry(Part.LineSegment(App.Vector(169, -129, 0), App.Vector(169, -103, 0)), False)
sketch17.addGeometry(Part.LineSegment(App.Vector(169, -103, 0), App.Vector(144, -103, 0)), False)
sketch17.addGeometry(Part.LineSegment(App.Vector(168, -127, 0), App.Vector(145, -127, 0)), False)
sketch17.addGeometry(Part.LineSegment(App.Vector(145, -127, 0), App.Vector(145, -105, 0)), False)
sketch17.addGeometry(Part.LineSegment(App.Vector(145, -105, 0), App.Vector(168, -105, 0)), False)
sketch17.addGeometry(Part.LineSegment(App.Vector(168, -105, 0), App.Vector(168, -127, 0)), False)
sketch17.addConstraint(Sketcher.Constraint("Coincident", 0, 2, 1, 1))
sketch17.addConstraint(Sketcher.Constraint("Coincident", 1, 2, 2, 1))
sketch17.addConstraint(Sketcher.Constraint("Coincident", 2, 2, 3, 1))
sketch17.addConstraint(Sketcher.Constraint("Coincident", 3, 2, 0, 1))
sketch17.addConstraint(Sketcher.Constraint("Coincident", 4, 2, 5, 1))
sketch17.addConstraint(Sketcher.Constraint("Coincident", 5, 2, 6, 1))
sketch17.addConstraint(Sketcher.Constraint("Coincident", 6, 2, 7, 1))
sketch17.addConstraint(Sketcher.Constraint("Coincident", 7, 2, 4, 1))
sketch17.addConstraint(Sketcher.Constraint("Vertical", 0))
sketch17.addConstraint(Sketcher.Constraint("Horizontal", 1))
sketch17.addConstraint(Sketcher.Constraint("Vertical", 2))
sketch17.addConstraint(Sketcher.Constraint("Horizontal", 3))
sketch17.addConstraint(Sketcher.Constraint("Horizontal", 4))
sketch17.addConstraint(Sketcher.Constraint("Vertical", 5))
sketch17.addConstraint(Sketcher.Constraint("Horizontal", 6))
sketch17.addConstraint(Sketcher.Constraint("Vertical", 7))
sketch17.addConstraint(Sketcher.Constraint("Equal", 3, 0))
sketch17.addConstraint(Sketcher.Constraint("Equal", 6, 5))
sketch17.addConstraint(Sketcher.Constraint("DistanceX", 1, 1, 1, 2, Q("1 in")))
sketch17.addConstraint(Sketcher.Constraint("DistanceX", 4, 2, 4, 1, Q("0.875 in")))
sketch17.addConstraint(Sketcher.Constraint("DistanceX", 0, 2, 4, 2, Q("0.0625 in")))
sketch17.addConstraint(Sketcher.Constraint("DistanceY", 0, 2, 4, 2, Q("0.0625 in")))
sketch17.addConstraint(Sketcher.Constraint("DistanceX", -1, 1, 0, 2, 143.884144))
sketch17.addConstraint(Sketcher.Constraint("DistanceY", 0, 2, -1, 1, 128.678435))
pad17 = body17.newObject("PartDesign::Pad", "Pad016")
pad17.Profile = sketch17
pad17.Length = Q("2.6875 in")

doc.recompute()
